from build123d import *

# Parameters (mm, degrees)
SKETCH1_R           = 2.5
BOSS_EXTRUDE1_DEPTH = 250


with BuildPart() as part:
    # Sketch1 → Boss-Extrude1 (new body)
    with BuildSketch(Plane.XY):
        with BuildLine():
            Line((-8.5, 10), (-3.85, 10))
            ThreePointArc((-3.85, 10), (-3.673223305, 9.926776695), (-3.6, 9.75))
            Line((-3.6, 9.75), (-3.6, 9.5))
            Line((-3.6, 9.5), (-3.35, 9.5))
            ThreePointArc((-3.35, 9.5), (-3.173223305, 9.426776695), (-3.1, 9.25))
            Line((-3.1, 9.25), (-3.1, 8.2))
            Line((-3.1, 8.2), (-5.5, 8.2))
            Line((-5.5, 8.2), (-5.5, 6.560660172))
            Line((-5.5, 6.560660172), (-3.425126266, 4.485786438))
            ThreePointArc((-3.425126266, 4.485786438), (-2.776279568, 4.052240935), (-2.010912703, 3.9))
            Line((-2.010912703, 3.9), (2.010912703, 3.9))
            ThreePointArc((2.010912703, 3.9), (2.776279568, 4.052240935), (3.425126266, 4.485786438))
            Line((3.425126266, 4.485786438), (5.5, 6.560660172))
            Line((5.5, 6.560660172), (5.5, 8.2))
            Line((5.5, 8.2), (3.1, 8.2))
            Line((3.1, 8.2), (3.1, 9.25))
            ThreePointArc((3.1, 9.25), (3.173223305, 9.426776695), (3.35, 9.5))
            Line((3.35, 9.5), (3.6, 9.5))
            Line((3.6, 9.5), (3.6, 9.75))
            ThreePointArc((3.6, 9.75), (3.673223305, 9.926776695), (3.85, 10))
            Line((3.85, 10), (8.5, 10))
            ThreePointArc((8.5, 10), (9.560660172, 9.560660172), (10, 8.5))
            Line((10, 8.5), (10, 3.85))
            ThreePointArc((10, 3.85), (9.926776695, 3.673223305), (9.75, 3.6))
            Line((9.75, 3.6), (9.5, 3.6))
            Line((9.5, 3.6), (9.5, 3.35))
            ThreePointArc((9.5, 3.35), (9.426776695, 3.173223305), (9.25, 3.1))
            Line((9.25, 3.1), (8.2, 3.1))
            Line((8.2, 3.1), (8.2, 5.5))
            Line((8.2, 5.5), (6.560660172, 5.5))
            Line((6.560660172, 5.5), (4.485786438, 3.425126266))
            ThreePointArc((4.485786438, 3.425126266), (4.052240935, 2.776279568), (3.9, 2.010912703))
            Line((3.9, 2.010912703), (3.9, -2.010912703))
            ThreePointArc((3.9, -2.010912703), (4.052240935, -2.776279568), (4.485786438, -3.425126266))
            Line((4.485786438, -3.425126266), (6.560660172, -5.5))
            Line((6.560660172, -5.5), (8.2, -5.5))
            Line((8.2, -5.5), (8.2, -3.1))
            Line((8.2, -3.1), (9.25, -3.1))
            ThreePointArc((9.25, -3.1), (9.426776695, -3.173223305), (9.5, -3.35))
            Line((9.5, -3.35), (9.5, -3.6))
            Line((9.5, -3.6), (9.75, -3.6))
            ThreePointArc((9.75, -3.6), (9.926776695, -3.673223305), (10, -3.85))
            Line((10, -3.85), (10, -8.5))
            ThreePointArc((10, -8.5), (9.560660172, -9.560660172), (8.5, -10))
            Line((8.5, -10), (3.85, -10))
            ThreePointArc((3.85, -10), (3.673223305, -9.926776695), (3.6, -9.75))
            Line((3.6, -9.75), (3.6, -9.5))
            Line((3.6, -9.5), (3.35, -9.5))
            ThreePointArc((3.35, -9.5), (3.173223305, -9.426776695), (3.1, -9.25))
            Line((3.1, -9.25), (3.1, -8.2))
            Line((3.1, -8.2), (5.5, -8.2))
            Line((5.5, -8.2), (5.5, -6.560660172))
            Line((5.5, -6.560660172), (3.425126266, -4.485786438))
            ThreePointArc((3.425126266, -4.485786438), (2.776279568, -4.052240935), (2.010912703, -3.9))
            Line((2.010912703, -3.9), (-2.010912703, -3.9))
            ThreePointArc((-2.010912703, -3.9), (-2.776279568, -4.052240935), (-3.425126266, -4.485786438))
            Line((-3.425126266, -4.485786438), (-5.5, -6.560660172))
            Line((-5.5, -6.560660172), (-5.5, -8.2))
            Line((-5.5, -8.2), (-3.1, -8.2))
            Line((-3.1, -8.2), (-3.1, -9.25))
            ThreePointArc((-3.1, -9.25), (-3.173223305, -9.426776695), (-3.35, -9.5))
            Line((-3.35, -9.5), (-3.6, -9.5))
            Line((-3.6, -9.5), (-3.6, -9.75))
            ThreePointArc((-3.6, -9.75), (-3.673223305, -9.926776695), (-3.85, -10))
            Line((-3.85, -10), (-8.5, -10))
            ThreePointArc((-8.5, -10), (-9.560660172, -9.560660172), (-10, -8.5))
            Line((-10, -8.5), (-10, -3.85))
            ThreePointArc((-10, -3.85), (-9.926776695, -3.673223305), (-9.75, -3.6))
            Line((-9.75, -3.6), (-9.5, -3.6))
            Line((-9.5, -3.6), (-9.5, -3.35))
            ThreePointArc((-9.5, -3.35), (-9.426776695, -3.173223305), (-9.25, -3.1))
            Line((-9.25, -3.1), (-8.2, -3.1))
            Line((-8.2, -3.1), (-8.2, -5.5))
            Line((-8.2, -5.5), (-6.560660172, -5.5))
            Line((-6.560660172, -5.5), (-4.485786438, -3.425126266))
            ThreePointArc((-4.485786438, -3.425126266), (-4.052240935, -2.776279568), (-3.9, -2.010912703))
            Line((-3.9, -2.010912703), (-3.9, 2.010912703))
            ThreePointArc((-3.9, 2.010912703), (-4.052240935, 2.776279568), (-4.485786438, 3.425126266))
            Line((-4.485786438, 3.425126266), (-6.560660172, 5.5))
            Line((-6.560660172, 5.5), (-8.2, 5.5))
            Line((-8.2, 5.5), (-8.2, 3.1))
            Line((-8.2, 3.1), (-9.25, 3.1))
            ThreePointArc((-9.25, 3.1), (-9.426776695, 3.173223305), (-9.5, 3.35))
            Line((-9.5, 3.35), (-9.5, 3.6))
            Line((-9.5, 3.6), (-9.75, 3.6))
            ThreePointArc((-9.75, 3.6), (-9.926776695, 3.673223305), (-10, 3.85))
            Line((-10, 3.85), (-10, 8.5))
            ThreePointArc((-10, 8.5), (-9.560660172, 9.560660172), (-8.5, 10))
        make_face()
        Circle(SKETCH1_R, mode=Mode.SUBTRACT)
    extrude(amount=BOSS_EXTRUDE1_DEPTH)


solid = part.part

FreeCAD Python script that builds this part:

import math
import FreeCAD as App
import Part
import Sketcher
Q = App.Units.Quantity

doc = App.newDocument("Part")
body = doc.addObject("PartDesign::Body", "Body")

# Sketch on XY plane
sketch1 = body.newObject("Sketcher::SketchObject", "Sketch")
sketch1.AttachmentSupport = (doc.getObject("XY_Plane"), [""])
sketch1.MapMode = "FlatFace"
sketch1.addGeometry(Part.LineSegment(App.Vector(-3.85, 10, 0), App.Vector(-8.5, 10, 0)), False)
sketch1.addGeometry(Part.ArcOfCircle(Part.Circle(App.Vector(-8.5, 8.5, 0), App.Vector(0, 0, 1), 1.5), math.radians(90), math.radians(180)), False)
sketch1.addGeometry(Part.LineSegment(App.Vector(-10, 8.5, 0), App.Vector(-10, 3.85, 0)), False)
sketch1.addGeometry(Part.ArcOfCircle(Part.Circle(App.Vector(-9.75, 3.85, 0), App.Vector(0, 0, 1), 0.25), math.radians(-180), math.radians(-90)), False)
sketch1.addGeometry(Part.LineSegment(App.Vector(-9.75, 3.6, 0), App.Vector(-9.5, 3.6, 0)), False)
sketch1.addGeometry(Part.LineSegment(App.Vector(-9.5, 3.6, 0), App.Vector(-9.5, 3.35, 0)), False)
sketch1.addGeometry(Part.ArcOfCircle(Part.Circle(App.Vector(-9.25, 3.35, 0), App.Vector(0, 0, 1), 0.25), math.radians(-180), math.radians(-90)), False)
sketch1.addGeometry(Part.LineSegment(App.Vector(-9.25, 3.1, 0), App.Vector(-8.2, 3.1, 0)), False)
sketch1.addGeometry(Part.LineSegment(App.Vector(-8.2, 3.1, 0), App.Vector(-8.2, 5.5, 0)), False)
sketch1.addGeometry(Part.LineSegment(App.Vector(-8.2, 5.5, 0), App.Vector(-6.56, 5.5, 0)), False)
sketch1.addGeometry(Part.LineSegment(App.Vector(-6.56, 5.5, 0), App.Vector(-4.49, 3.43, 0)), False)
sketch1.addGeometry(Part.ArcOfCircle(Part.Circle(App.Vector(-5.9, 2.01, 0), App.Vector(0, 0, 1), 2), math.radians(0), math.radians(45)), False)
sketch1.addGeometry(Part.LineSegment(App.Vector(-3.9, 2.01, 0), App.Vector(-3.9, -2.01, 0)), False)
sketch1.addGeometry(Part.ArcOfCircle(Part.Circle(App.Vector(-5.9, -2.01, 0), App.Vector(0, 0, 1), 2), math.radians(-45), math.radians(0)), False)
sketch1.addGeometry(Part.LineSegment(App.Vector(-4.49, -3.43, 0), App.Vector(-6.56, -5.5, 0)), False)
sketch1.addGeometry(Part.LineSegment(App.Vector(-6.56, -5.5, 0), App.Vector(-8.2, -5.5, 0)), False)
sketch1.addGeometry(Part.LineSegment(App.Vector(-8.2, -5.5, 0), App.Vector(-8.2, -3.1, 0)), False)
sketch1.addGeometry(Part.LineSegment(App.Vector(-8.2, -3.1, 0), App.Vector(-9.25, -3.1, 0)), False)
sketch1.addGeometry(Part.ArcOfCircle(Part.Circle(App.Vector(-9.25, -3.35, 0), App.Vector(0, 0, 1), 0.25), math.radians(90), math.radians(180)), False)
sketch1.addGeometry(Part.LineSegment(App.Vector(-9.5, -3.35, 0), App.Vector(-9.5, -3.6, 0)), False)
sketch1.addGeometry(Part.LineSegment(App.Vector(-9.5, -3.6, 0), App.Vector(-9.75, -3.6, 0)), False)
sketch1.addGeometry(Part.ArcOfCircle(Part.Circle(App.Vector(-9.75, -3.85, 0), App.Vector(0, 0, 1), 0.25), math.radians(90), math.radians(180)), False)
sketch1.addGeometry(Part.LineSegment(App.Vector(-10, -3.85, 0), App.Vector(-10, -8.5, 0)), False)
sketch1.addGeometry(Part.ArcOfCircle(Part.Circle(App.Vector(-8.5, -8.5, 0), App.Vector(0, 0, 1), 1.5), math.radians(180), math.radians(270)), False)
sketch1.addGeometry(Part.LineSegment(App.Vector(-8.5, -10, 0), App.Vector(-3.85, -10, 0)), False)
sketch1.addGeometry(Part.ArcOfCircle(Part.Circle(App.Vector(-3.85, -9.75, 0), App.Vector(0, 0, 1), 0.25), math.radians(-90), math.radians(0)), False)
sketch1.addGeometry(Part.LineSegment(App.Vector(-3.6, -9.75, 0), App.Vector(-3.6, -9.5, 0)), False)
sketch1.addGeometry(Part.LineSegment(App.Vector(-3.6, -9.5, 0), App.Vector(-3.35, -9.5, 0)), False)
sketch1.addGeometry(Part.ArcOfCircle(Part.Circle(App.Vector(-3.35, -9.25, 0), App.Vector(0, 0, 1), 0.25), math.radians(-90), math.radians(0)), False)
sketch1.addGeometry(Part.LineSegment(App.Vector(-3.1, -9.25, 0), App.Vector(-3.1, -8.2, 0)), False)
sketch1.addGeometry(Part.LineSegment(App.Vector(-3.1, -8.2, 0), App.Vector(-5.5, -8.2, 0)), False)
sketch1.addGeometry(Part.LineSegment(App.Vector(-5.5, -8.2, 0), App.Vector(-5.5, -6.56, 0)), False)
sketch1.addGeometry(Part.LineSegment(App.Vector(-5.5, -6.56, 0), App.Vector(-3.43, -4.49, 0)), False)
sketch1.addGeometry(Part.ArcOfCircle(Part.Circle(App.Vector(-2.01, -5.9, 0), App.Vector(0, 0, 1), 2), math.radians(90), math.radians(135)), False)
sketch1.addGeometry(Part.LineSegment(App.Vector(-2.01, -3.9, 0), App.Vector(2.01, -3.9, 0)), False)
sketch1.addGeometry(Part.ArcOfCircle(Part.Circle(App.Vector(2.01, -5.9, 0), App.Vector(0, 0, 1), 2), math.radians(45), math.radians(90)), False)
sketch1.addGeometry(Part.LineSegment(App.Vector(3.43, -4.49, 0), App.Vector(5.5, -6.56, 0)), False)
sketch1.addGeometry(Part.LineSegment(App.Vector(5.5, -6.56, 0), App.Vector(5.5, -8.2, 0)), False)
sketch1.addGeometry(Part.LineSegment(App.Vector(5.5, -8.2, 0), App.Vector(3.1, -8.2, 0)), False)
sketch1.addGeometry(Part.LineSegment(App.Vector(3.1, -8.2, 0), App.Vector(3.1, -9.25, 0)), False)
sketch1.addGeometry(Part.ArcOfCircle(Part.Circle(App.Vector(3.35, -9.25, 0), App.Vector(0, 0, 1), 0.25), math.radians(-180), math.radians(-90)), False)
sketch1.addGeometry(Part.LineSegment(App.Vector(3.35, -9.5, 0), App.Vector(3.6, -9.5, 0)), False)
sketch1.addGeometry(Part.LineSegment(App.Vector(3.6, -9.5, 0), App.Vector(3.6, -9.75, 0)), False)
sketch1.addGeometry(Part.ArcOfCircle(Part.Circle(App.Vector(3.85, -9.75, 0), App.Vector(0, 0, 1), 0.25), math.radians(-180), math.radians(-90)), False)
sketch1.addGeometry(Part.LineSegment(App.Vector(3.85, -10, 0), App.Vector(8.5, -10, 0)), False)
sketch1.addGeometry(Part.ArcOfCircle(Part.Circle(App.Vector(8.5, -8.5, 0), App.Vector(0, 0, 1), 1.5), math.radians(-90), math.radians(0)), False)
sketch1.addGeometry(Part.LineSegment(App.Vector(10, -8.5, 0), App.Vector(10, -3.85, 0)), False)
sketch1.addGeometry(Part.ArcOfCircle(Part.Circle(App.Vector(9.75, -3.85, 0), App.Vector(0, 0, 1), 0.25), math.radians(0), math.radians(90)), False)
sketch1.addGeometry(Part.LineSegment(App.Vector(9.75, -3.6, 0), App.Vector(9.5, -3.6, 0)), False)
sketch1.addGeometry(Part.LineSegment(App.Vector(9.5, -3.6, 0), App.Vector(9.5, -3.35, 0)), False)
sketch1.addGeometry(Part.ArcOfCircle(Part.Circle(App.Vector(9.25, -3.35, 0), App.Vector(0, 0, 1), 0.25), math.radians(0), math.radians(90)), False)
sketch1.addGeometry(Part.LineSegment(App.Vector(9.25, -3.1, 0), App.Vector(8.2, -3.1, 0)), False)
sketch1.addGeometry(Part.LineSegment(App.Vector(8.2, -3.1, 0), App.Vector(8.2, -5.5, 0)), False)
sketch1.addGeometry(Part.LineSegment(App.Vector(8.2, -5.5, 0), App.Vector(6.56, -5.5, 0)), False)
sketch1.addGeometry(Part.LineSegment(App.Vector(6.56, -5.5, 0), App.Vector(4.49, -3.43, 0)), False)
sketch1.addGeometry(Part.ArcOfCircle(Part.Circle(App.Vector(5.9, -2.01, 0), App.Vector(0, 0, 1), 2), math.radians(180), math.radians(225)), False)
sketch1.addGeometry(Part.LineSegment(App.Vector(3.9, -2.01, 0), App.Vector(3.9, 2.01, 0)), False)
sketch1.addGeometry(Part.ArcOfCircle(Part.Circle(App.Vector(5.9, 2.01, 0), App.Vector(0, 0, 1), 2), math.radians(135), math.radians(180)), False)
sketch1.addGeometry(Part.LineSegment(App.Vector(4.49, 3.43, 0), App.Vector(6.56, 5.5, 0)), False)
sketch1.addGeometry(Part.LineSegment(App.Vector(6.56, 5.5, 0), App.Vector(8.2, 5.5, 0)), False)
sketch1.addGeometry(Part.LineSegment(App.Vector(8.2, 5.5, 0), App.Vector(8.2, 3.1, 0)), False)
sketch1.addGeometry(Part.LineSegment(App.Vector(8.2, 3.1, 0), App.Vector(9.25, 3.1, 0)), False)
sketch1.addGeometry(Part.ArcOfCircle(Part.Circle(App.Vector(9.25, 3.35, 0), App.Vector(0, 0, 1), 0.25), math.radians(-90), math.radians(0)), False)
sketch1.addGeometry(Part.LineSegment(App.Vector(9.5, 3.35, 0), App.Vector(9.5, 3.6, 0)), False)
sketch1.addGeometry(Part.LineSegment(App.Vector(9.5, 3.6, 0), App.Vector(9.75, 3.6, 0)), False)
sketch1.addGeometry(Part.ArcOfCircle(Part.Circle(App.Vector(9.75, 3.85, 0), App.Vector(0, 0, 1), 0.25), math.radians(-90), math.radians(0)), False)
sketch1.addGeometry(Part.LineSegment(App.Vector(10, 3.85, 0), App.Vector(10, 8.5, 0)), False)
sketch1.addGeometry(Part.ArcOfCircle(Part.Circle(App.Vector(8.5, 8.5, 0), App.Vector(0, 0, 1), 1.5), math.radians(0), math.radians(90)), False)
sketch1.addGeometry(Part.LineSegment(App.Vector(8.5, 10, 0), App.Vector(3.85, 10, 0)), False)
sketch1.addGeometry(Part.ArcOfCircle(Part.Circle(App.Vector(3.85, 9.75, 0), App.Vector(0, 0, 1), 0.25), math.radians(90), math.radians(180)), False)
sketch1.addGeometry(Part.LineSegment(App.Vector(3.6, 9.75, 0), App.Vector(3.6, 9.5, 0)), False)
sketch1.addGeometry(Part.LineSegment(App.Vector(3.6, 9.5, 0), App.Vector(3.35, 9.5, 0)), False)
sketch1.addGeometry(Part.ArcOfCircle(Part.Circle(App.Vector(3.35, 9.25, 0), App.Vector(0, 0, 1), 0.25), math.radians(90), math.radians(180)), False)
sketch1.addGeometry(Part.LineSegment(App.Vector(3.1, 9.25, 0), App.Vector(3.1, 8.2, 0)), False)
sketch1.addGeometry(Part.LineSegment(App.Vector(3.1, 8.2, 0), App.Vector(5.5, 8.2, 0)), False)
sketch1.addGeometry(Part.LineSegment(App.Vector(5.5, 8.2, 0), App.Vector(5.5, 6.56, 0)), False)
sketch1.addGeometry(Part.LineSegment(App.Vector(5.5, 6.56, 0), App.Vector(3.43, 4.49, 0)), False)
sketch1.addGeometry(Part.ArcOfCircle(Part.Circle(App.Vector(2.01, 5.9, 0), App.Vector(0, 0, 1), 2), math.radians(-90), math.radians(-45)), False)
sketch1.addGeometry(Part.LineSegment(App.Vector(2.01, 3.9, 0), App.Vector(-2.01, 3.9, 0)), False)
sketch1.addGeometry(Part.ArcOfCircle(Part.Circle(App.Vector(-2.01, 5.9, 0), App.Vector(0, 0, 1), 2), math.radians(-135), math.radians(-90)), False)
sketch1.addGeometry(Part.LineSegment(App.Vector(-3.43, 4.49, 0), App.Vector(-5.5, 6.56, 0)), False)
sketch1.addGeometry(Part.LineSegment(App.Vector(-5.5, 6.56, 0), App.Vector(-5.5, 8.2, 0)), False)
sketch1.addGeometry(Part.LineSegment(App.Vector(-5.5, 8.2, 0), App.Vector(-3.1, 8.2, 0)), False)
sketch1.addGeometry(Part.LineSegment(App.Vector(-3.1, 8.2, 0), App.Vector(-3.1, 9.25, 0)), False)
sketch1.addGeometry(Part.ArcOfCircle(Part.Circle(App.Vector(-3.35, 9.25, 0), App.Vector(0, 0, 1), 0.25), math.radians(0), math.radians(90)), False)
sketch1.addGeometry(Part.LineSegment(App.Vector(-3.35, 9.5, 0), App.Vector(-3.6, 9.5, 0)), False)
sketch1.addGeometry(Part.LineSegment(App.Vector(-3.6, 9.5, 0), App.Vector(-3.6, 9.75, 0)), False)
sketch1.addGeometry(Part.ArcOfCircle(Part.Circle(App.Vector(-3.85, 9.75, 0), App.Vector(0, 0, 1), 0.25), math.radians(0), math.radians(90)), False)
sketch1.addGeometry(Part.Circle(App.Vector(0, 0, 0), App.Vector(0, 0, 1), 2.5), False)
sketch1.addConstraint(Sketcher.Constraint("Tangent", 0, 2, 1, 1))
sketch1.addConstraint(Sketcher.Constraint("Tangent", 1, 2, 2, 1))
sketch1.addConstraint(Sketcher.Constraint("Tangent", 2, 2, 3, 1))
sketch1.addConstraint(Sketcher.Constraint("Tangent", 3, 2, 4, 1))
sketch1.addConstraint(Sketcher.Constraint("Coincident", 4, 2, 5, 1))
sketch1.addConstraint(Sketcher.Constraint("Tangent", 5, 2, 6, 1))
sketch1.addConstraint(Sketcher.Constraint("Tangent", 6, 2, 7, 1))
sketch1.addConstraint(Sketcher.Constraint("Coincident", 7, 2, 8, 1))
sketch1.addConstraint(Sketcher.Constraint("Coincident", 8, 2, 9, 1))
sketch1.addConstraint(Sketcher.Constraint("Coincident", 9, 2, 10, 1))
sketch1.addConstraint(Sketcher.Constraint("Tangent", 10, 2, 11, 2))
sketch1.addConstraint(Sketcher.Constraint("Tangent", 11, 1, 12, 1))
sketch1.addConstraint(Sketcher.Constraint("Tangent", 12, 2, 13, 2))
sketch1.addConstraint(Sketcher.Constraint("Tangent", 13, 1, 14, 1))
sketch1.addConstraint(Sketcher.Constraint("Coincident", 14, 2, 15, 1))
sketch1.addConstraint(Sketcher.Constraint("Coincident", 15, 2, 16, 1))
sketch1.addConstraint(Sketcher.Constraint("Coincident", 16, 2, 17, 1))
sketch1.addConstraint(Sketcher.Constraint("Tangent", 17, 2, 18, 1))
sketch1.addConstraint(Sketcher.Constraint("Tangent", 18, 2, 19, 1))
sketch1.addConstraint(Sketcher.Constraint("Coincident", 19, 2, 20, 1))
sketch1.addConstraint(Sketcher.Constraint("Tangent", 20, 2, 21, 1))
sketch1.addConstraint(Sketcher.Constraint("Tangent", 21, 2, 22, 1))
sketch1.addConstraint(Sketcher.Constraint("Tangent", 22, 2, 23, 1))
sketch1.addConstraint(Sketcher.Constraint("Tangent", 23, 2, 24, 1))
sketch1.addConstraint(Sketcher.Constraint("Tangent", 24, 2, 25, 1))
sketch1.addConstraint(Sketcher.Constraint("Tangent", 25, 2, 26, 1))
sketch1.addConstraint(Sketcher.Constraint("Coincident", 26, 2, 27, 1))
sketch1.addConstraint(Sketcher.Constraint("Tangent", 27, 2, 28, 1))
sketch1.addConstraint(Sketcher.Constraint("Tangent", 28, 2, 29, 1))
sketch1.addConstraint(Sketcher.Constraint("Coincident", 29, 2, 30, 1))
sketch1.addConstraint(Sketcher.Constraint("Coincident", 30, 2, 31, 1))
sketch1.addConstraint(Sketcher.Constraint("Coincident", 31, 2, 32, 1))
sketch1.addConstraint(Sketcher.Constraint("Tangent", 32, 2, 33, 2))
sketch1.addConstraint(Sketcher.Constraint("Tangent", 33, 1, 34, 1))
sketch1.addConstraint(Sketcher.Constraint("Tangent", 34, 2, 35, 2))
sketch1.addConstraint(Sketcher.Constraint("Tangent", 35, 1, 36, 1))
sketch1.addConstraint(Sketcher.Constraint("Coincident", 36, 2, 37, 1))
sketch1.addConstraint(Sketcher.Constraint("Coincident", 37, 2, 38, 1))
sketch1.addConstraint(Sketcher.Constraint("Coincident", 38, 2, 39, 1))
sketch1.addConstraint(Sketcher.Constraint("Tangent", 39, 2, 40, 1))
sketch1.addConstraint(Sketcher.Constraint("Tangent", 40, 2, 41, 1))
sketch1.addConstraint(Sketcher.Constraint("Coincident", 41, 2, 42, 1))
sketch1.addConstraint(Sketcher.Constraint("Tangent", 42, 2, 43, 1))
sketch1.addConstraint(Sketcher.Constraint("Tangent", 43, 2, 44, 1))
sketch1.addConstraint(Sketcher.Constraint("Tangent", 44, 2, 45, 1))
sketch1.addConstraint(Sketcher.Constraint("Tangent", 45, 2, 46, 1))
sketch1.addConstraint(Sketcher.Constraint("Tangent", 46, 2, 47, 1))
sketch1.addConstraint(Sketcher.Constraint("Tangent", 47, 2, 48, 1))
sketch1.addConstraint(Sketcher.Constraint("Coincident", 48, 2, 49, 1))
sketch1.addConstraint(Sketcher.Constraint("Tangent", 49, 2, 50, 1))
sketch1.addConstraint(Sketcher.Constraint("Tangent", 50, 2, 51, 1))
sketch1.addConstraint(Sketcher.Constraint("Coincident", 51, 2, 52, 1))
sketch1.addConstraint(Sketcher.Constraint("Coincident", 52, 2, 53, 1))
sketch1.addConstraint(Sketcher.Constraint("Coincident", 53, 2, 54, 1))
sketch1.addConstraint(Sketcher.Constraint("Tangent", 54, 2, 55, 2))
sketch1.addConstraint(Sketcher.Constraint("Tangent", 55, 1, 56, 1))
sketch1.addConstraint(Sketcher.Constraint("Tangent", 56, 2, 57, 2))
sketch1.addConstraint(Sketcher.Constraint("Tangent", 57, 1, 58, 1))
sketch1.addConstraint(Sketcher.Constraint("Coincident", 58, 2, 59, 1))
sketch1.addConstraint(Sketcher.Constraint("Coincident", 59, 2, 60, 1))
sketch1.addConstraint(Sketcher.Constraint("Coincident", 60, 2, 61, 1))
sketch1.addConstraint(Sketcher.Constraint("Tangent", 61, 2, 62, 1))
sketch1.addConstraint(Sketcher.Constraint("Tangent", 62, 2, 63, 1))
sketch1.addConstraint(Sketcher.Constraint("Coincident", 63, 2, 64, 1))
sketch1.addConstraint(Sketcher.Constraint("Tangent", 64, 2, 65, 1))
sketch1.addConstraint(Sketcher.Constraint("Tangent", 65, 2, 66, 1))
sketch1.addConstraint(Sketcher.Constraint("Tangent", 66, 2, 67, 1))
sketch1.addConstraint(Sketcher.Constraint("Tangent", 67, 2, 68, 1))
sketch1.addConstraint(Sketcher.Constraint("Tangent", 68, 2, 69, 1))
sketch1.addConstraint(Sketcher.Constraint("Tangent", 69, 2, 70, 1))
sketch1.addConstraint(Sketcher.Constraint("Coincident", 70, 2, 71, 1))
sketch1.addConstraint(Sketcher.Constraint("Tangent", 71, 2, 72, 1))
sketch1.addConstraint(Sketcher.Constraint("Tangent", 72, 2, 73, 1))
sketch1.addConstraint(Sketcher.Constraint("Coincident", 73, 2, 74, 1))
sketch1.addConstraint(Sketcher.Constraint("Coincident", 74, 2, 75, 1))
sketch1.addConstraint(Sketcher.Constraint("Coincident", 75, 2, 76, 1))
sketch1.addConstraint(Sketcher.Constraint("Tangent", 76, 2, 77, 2))
sketch1.addConstraint(Sketcher.Constraint("Tangent", 77, 1, 78, 1))
sketch1.addConstraint(Sketcher.Constraint("Tangent", 78, 2, 79, 2))
sketch1.addConstraint(Sketcher.Constraint("Tangent", 79, 1, 80, 1))
sketch1.addConstraint(Sketcher.Constraint("Coincident", 80, 2, 81, 1))
sketch1.addConstraint(Sketcher.Constraint("Coincident", 81, 2, 82, 1))
sketch1.addConstraint(Sketcher.Constraint("Coincident", 82, 2, 83, 1))
sketch1.addConstraint(Sketcher.Constraint("Tangent", 83, 2, 84, 1))
sketch1.addConstraint(Sketcher.Constraint("Tangent", 84, 2, 85, 1))
sketch1.addConstraint(Sketcher.Constraint("Coincident", 85, 2, 86, 1))
sketch1.addConstraint(Sketcher.Constraint("Tangent", 86, 2, 87, 1))
sketch1.addConstraint(Sketcher.Constraint("Tangent", 87, 2, 0, 1))
sketch1.addConstraint(Sketcher.Constraint("Horizontal", 0))
sketch1.addConstraint(Sketcher.Constraint("Vertical", 2))
sketch1.addConstraint(Sketcher.Constraint("Horizontal", 4))
sketch1.addConstraint(Sketcher.Constraint("Vertical", 5))
sketch1.addConstraint(Sketcher.Constraint("Horizontal", 7))
sketch1.addConstraint(Sketcher.Constraint("Vertical", 8))
sketch1.addConstraint(Sketcher.Constraint("Horizontal", 9))
sketch1.addConstraint(Sketcher.Constraint("Vertical", 12))
sketch1.addConstraint(Sketcher.Constraint("Horizontal", 15))
sketch1.addConstraint(Sketcher.Constraint("Vertical", 16))
sketch1.addConstraint(Sketcher.Constraint("Horizontal", 17))
sketch1.addConstraint(Sketcher.Constraint("Vertical", 19))
sketch1.addConstraint(Sketcher.Constraint("Horizontal", 20))
sketch1.addConstraint(Sketcher.Constraint("Vertical", 22))
sketch1.addConstraint(Sketcher.Constraint("Horizontal", 24))
sketch1.addConstraint(Sketcher.Constraint("Vertical", 26))
sketch1.addConstraint(Sketcher.Constraint("Horizontal", 27))
sketch1.addConstraint(Sketcher.Constraint("Vertical", 29))
sketch1.addConstraint(Sketcher.Constraint("Horizontal", 30))
sketch1.addConstraint(Sketcher.Constraint("Vertical", 31))
sketch1.addConstraint(Sketcher.Constraint("Horizontal", 34))
sketch1.addConstraint(Sketcher.Constraint("Vertical", 37))
sketch1.addConstraint(Sketcher.Constraint("Horizontal", 38))
sketch1.addConstraint(Sketcher.Constraint("Vertical", 39))
sketch1.addConstraint(Sketcher.Constraint("Horizontal", 41))
sketch1.addConstraint(Sketcher.Constraint("Vertical", 42))
sketch1.addConstraint(Sketcher.Constraint("Horizontal", 44))
sketch1.addConstraint(Sketcher.Constraint("Vertical", 46))
sketch1.addConstraint(Sketcher.Constraint("Horizontal", 48))
sketch1.addConstraint(Sketcher.Constraint("Vertical", 49))
sketch1.addConstraint(Sketcher.Constraint("Horizontal", 51))
sketch1.addConstraint(Sketcher.Constraint("Vertical", 52))
sketch1.addConstraint(Sketcher.Constraint("Horizontal", 53))
sketch1.addConstraint(Sketcher.Constraint("Vertical", 56))
sketch1.addConstraint(Sketcher.Constraint("Horizontal", 59))
sketch1.addConstraint(Sketcher.Constraint("Vertical", 60))
sketch1.addConstraint(Sketcher.Constraint("Horizontal", 61))
sketch1.addConstraint(Sketcher.Constraint("Vertical", 63))
sketch1.addConstraint(Sketcher.Constraint("Horizontal", 64))
sketch1.addConstraint(Sketcher.Constraint("Vertical", 66))
sketch1.addConstraint(Sketcher.Constraint("Horizontal", 68))
sketch1.addConstraint(Sketcher.Constraint("Vertical", 70))
sketch1.addConstraint(Sketcher.Constraint("Horizontal", 71))
sketch1.addConstraint(Sketcher.Constraint("Vertical", 73))
sketch1.addConstraint(Sketcher.Constraint("Horizontal", 74))
sketch1.addConstraint(Sketcher.Constraint("Vertical", 75))
sketch1.addConstraint(Sketcher.Constraint("Horizontal", 78))
sketch1.addConstraint(Sketcher.Constraint("Vertical", 81))
sketch1.addConstraint(Sketcher.Constraint("Horizontal", 82))
sketch1.addConstraint(Sketcher.Constraint("Vertical", 83))
sketch1.addConstraint(Sketcher.Constraint("Horizontal", 85))
sketch1.addConstraint(Sketcher.Constraint("Vertical", 86))
sketch1.addConstraint(Sketcher.Constraint("Coincident", 88, 3, -1, 1))
sketch1.addConstraint(Sketcher.Constraint("Equal", 3, 6))
sketch1.addConstraint(Sketcher.Constraint("Equal", 11, 13))
sketch1.addConstraint(Sketcher.Constraint("Equal", 6, 18))
sketch1.addConstraint(Sketcher.Constraint("Equal", 18, 21))
sketch1.addConstraint(Sketcher.Constraint("Equal", 1, 23))
sketch1.addConstraint(Sketcher.Constraint("Equal", 21, 25))
sketch1.addConstraint(Sketcher.Constraint("Equal", 25, 28))
sketch1.addConstraint(Sketcher.Constraint("Equal", 13, 33))
sketch1.addConstraint(Sketcher.Constraint("Equal", 33, 35))
sketch1.addConstraint(Sketcher.Constraint("Equal", 28, 40))
sketch1.addConstraint(Sketcher.Constraint("Equal", 40, 43))
sketch1.addConstraint(Sketcher.Constraint("Equal", 23, 45))
sketch1.addConstraint(Sketcher.Constraint("Equal", 43, 47))
sketch1.addConstraint(Sketcher.Constraint("Equal", 47, 50))
sketch1.addConstraint(Sketcher.Constraint("Equal", 35, 55))
sketch1.addConstraint(Sketcher.Constraint("Equal", 55, 57))
sketch1.addConstraint(Sketcher.Constraint("Equal", 50, 62))
sketch1.addConstraint(Sketcher.Constraint("Equal", 62, 65))
sketch1.addConstraint(Sketcher.Constraint("Equal", 45, 67))
sketch1.addConstraint(Sketcher.Constraint("Equal", 65, 69))
sketch1.addConstraint(Sketcher.Constraint("Equal", 69, 72))
sketch1.addConstraint(Sketcher.Constraint("Equal", 57, 77))
sketch1.addConstraint(Sketcher.Constraint("Equal", 77, 79))
sketch1.addConstraint(Sketcher.Constraint("Equal", 72, 84))
sketch1.addConstraint(Sketcher.Constraint("Equal", 84, 87))
sketch1.addConstraint(Sketcher.Constraint("Symmetric", 1, 3, 45, 3, -1, 1))
sketch1.addConstraint(Sketcher.Constraint("Symmetric", 6, 3, 50, 3, -1, 1))
sketch1.addConstraint(Sketcher.Constraint("Symmetric", 11, 3, 55, 3, -1, 1))
sketch1.addConstraint(Sketcher.Constraint("Symmetric", 18, 3, 62, 3, -1, 1))
sketch1.addConstraint(Sketcher.Constraint("Symmetric", 21, 3, 65, 3, -1, 1))
sketch1.addConstraint(Sketcher.Constraint("Symmetric", 25, 3, 69, 3, -1, 1))
sketch1.addConstraint(Sketcher.Constraint("Symmetric", 28, 3, 72, 3, -1, 1))
sketch1.addConstraint(Sketcher.Constraint("Symmetric", 33, 3, 77, 3, -1, 1))
sketch1.addConstraint(Sketcher.Constraint("Symmetric", 40, 3, 84, 3, -1, 1))
sketch1.addConstraint(Sketcher.Constraint("Symmetric", 8, 2, 52, 2, -1, 1))
sketch1.addConstraint(Sketcher.Constraint("Symmetric", 13, 1, 57, 1, -1, 1))
sketch1.addConstraint(Sketcher.Constraint("Symmetric", 15, 2, 59, 2, -1, 1))
sketch1.addConstraint(Sketcher.Constraint("Symmetric", 30, 2, 74, 2, -1, 1))
sketch1.addConstraint(Sketcher.Constraint("Symmetric", 35, 1, 79, 1, -1, 1))
sketch1.addConstraint(Sketcher.Constraint("Symmetric", 37, 2, 81, 2, -1, 1))
sketch1.addConstraint(Sketcher.Constraint("Symmetric", 28, 3, 40, 3, -2))
sketch1.addConstraint(Sketcher.Constraint("Symmetric", 25, 3, 43, 3, -2))
sketch1.addConstraint(Sketcher.Constraint("Symmetric", 21, 3, 47, 3, -2))
sketch1.addConstraint(Sketcher.Constraint("Symmetric", 18, 3, 50, 3, -2))
sketch1.addConstraint(Sketcher.Constraint("Symmetric", 32, 2, 35, 1, -2))
sketch1.addConstraint(Sketcher.Constraint("Symmetric", 30, 2, 37, 2, -2))
sketch1.addConstraint(Sketcher.Constraint("Symmetric", 15, 2, 52, 2, -2))
sketch1.addConstraint(Sketcher.Constraint("Symmetric", 13, 1, 54, 2, -2))
sketch1.addConstraint(Sketcher.Constraint("Perpendicular", 10, 14))
sketch1.addConstraint(Sketcher.Constraint("Parallel", 14, 32))
sketch1.addConstraint(Sketcher.Constraint("Perpendicular", 32, 36))
sketch1.addConstraint(Sketcher.Constraint("Parallel", 58, 76))
sketch1.addConstraint(Sketcher.Constraint("Horizontal", 3, 3, 65, 3))
sketch1.addConstraint(Sketcher.Constraint("Vertical", 25, 3, 87, 3))
sketch1.addConstraint(Sketcher.Constraint("Equal", 20, 27))
sketch1.addConstraint(Sketcher.Constraint("Equal", 68, 2))
sketch1.addConstraint(Sketcher.Constraint("Equal", 85, 5))
sketch1.addConstraint(Sketcher.Constraint("Equal", 82, 8))
sketch1.addConstraint(Sketcher.Constraint("Equal", 78, 12))
sketch1.addConstraint(Sketcher.Constraint("Equal", 19, 26))
sketch1.addConstraint(Sketcher.Constraint("Equal", 61, 29))
sketch1.addConstraint(Sketcher.Constraint("Equal", 59, 31))
sketch1.addConstraint(Sketcher.Constraint("Equal", 14, 32))
sketch1.addConstraint(Sketcher.Constraint("Diameter", 88, Q("5 mm")))
sketch1.addConstraint(Sketcher.Constraint("Radius", 11, Q("2 mm")))
sketch1.addConstraint(Sketcher.Constraint("Radius", 1, Q("1.5 mm")))
sketch1.addConstraint(Sketcher.Constraint("Radius", 3, Q("0.25 mm")))
sketch1.addConstraint(Sketcher.Constraint("DistanceX", 30, 2, 30, 1, Q("2.4 mm")))
sketch1.addConstraint(Sketcher.Constraint("DistanceY", -1, 1, 0, 2, Q("10 mm")))
sketch1.addConstraint(Sketcher.Constraint("DistanceX", 0, 2, 0, 1, Q("4.65 mm")))
sketch1.addConstraint(Sketcher.Constraint("DistanceX", 4, 1, 4, 2, Q("0.25 mm")))
sketch1.addConstraint(Sketcher.Constraint("DistanceX", 7, 1, 7, 2, Q("1.05 mm")))
sketch1.addConstraint(Sketcher.Constraint("DistanceX", 11, 3, -1, 1, Q("5.9 mm")))
sketch1.addConstraint(Sketcher.Constraint("DistanceX", 9, 1, 9, 2, Q("1.63934 mm")))
pad1 = body.newObject("PartDesign::Pad", "Pad")
pad1.Profile = sketch1
pad1.Length = 250

doc.recompute()
